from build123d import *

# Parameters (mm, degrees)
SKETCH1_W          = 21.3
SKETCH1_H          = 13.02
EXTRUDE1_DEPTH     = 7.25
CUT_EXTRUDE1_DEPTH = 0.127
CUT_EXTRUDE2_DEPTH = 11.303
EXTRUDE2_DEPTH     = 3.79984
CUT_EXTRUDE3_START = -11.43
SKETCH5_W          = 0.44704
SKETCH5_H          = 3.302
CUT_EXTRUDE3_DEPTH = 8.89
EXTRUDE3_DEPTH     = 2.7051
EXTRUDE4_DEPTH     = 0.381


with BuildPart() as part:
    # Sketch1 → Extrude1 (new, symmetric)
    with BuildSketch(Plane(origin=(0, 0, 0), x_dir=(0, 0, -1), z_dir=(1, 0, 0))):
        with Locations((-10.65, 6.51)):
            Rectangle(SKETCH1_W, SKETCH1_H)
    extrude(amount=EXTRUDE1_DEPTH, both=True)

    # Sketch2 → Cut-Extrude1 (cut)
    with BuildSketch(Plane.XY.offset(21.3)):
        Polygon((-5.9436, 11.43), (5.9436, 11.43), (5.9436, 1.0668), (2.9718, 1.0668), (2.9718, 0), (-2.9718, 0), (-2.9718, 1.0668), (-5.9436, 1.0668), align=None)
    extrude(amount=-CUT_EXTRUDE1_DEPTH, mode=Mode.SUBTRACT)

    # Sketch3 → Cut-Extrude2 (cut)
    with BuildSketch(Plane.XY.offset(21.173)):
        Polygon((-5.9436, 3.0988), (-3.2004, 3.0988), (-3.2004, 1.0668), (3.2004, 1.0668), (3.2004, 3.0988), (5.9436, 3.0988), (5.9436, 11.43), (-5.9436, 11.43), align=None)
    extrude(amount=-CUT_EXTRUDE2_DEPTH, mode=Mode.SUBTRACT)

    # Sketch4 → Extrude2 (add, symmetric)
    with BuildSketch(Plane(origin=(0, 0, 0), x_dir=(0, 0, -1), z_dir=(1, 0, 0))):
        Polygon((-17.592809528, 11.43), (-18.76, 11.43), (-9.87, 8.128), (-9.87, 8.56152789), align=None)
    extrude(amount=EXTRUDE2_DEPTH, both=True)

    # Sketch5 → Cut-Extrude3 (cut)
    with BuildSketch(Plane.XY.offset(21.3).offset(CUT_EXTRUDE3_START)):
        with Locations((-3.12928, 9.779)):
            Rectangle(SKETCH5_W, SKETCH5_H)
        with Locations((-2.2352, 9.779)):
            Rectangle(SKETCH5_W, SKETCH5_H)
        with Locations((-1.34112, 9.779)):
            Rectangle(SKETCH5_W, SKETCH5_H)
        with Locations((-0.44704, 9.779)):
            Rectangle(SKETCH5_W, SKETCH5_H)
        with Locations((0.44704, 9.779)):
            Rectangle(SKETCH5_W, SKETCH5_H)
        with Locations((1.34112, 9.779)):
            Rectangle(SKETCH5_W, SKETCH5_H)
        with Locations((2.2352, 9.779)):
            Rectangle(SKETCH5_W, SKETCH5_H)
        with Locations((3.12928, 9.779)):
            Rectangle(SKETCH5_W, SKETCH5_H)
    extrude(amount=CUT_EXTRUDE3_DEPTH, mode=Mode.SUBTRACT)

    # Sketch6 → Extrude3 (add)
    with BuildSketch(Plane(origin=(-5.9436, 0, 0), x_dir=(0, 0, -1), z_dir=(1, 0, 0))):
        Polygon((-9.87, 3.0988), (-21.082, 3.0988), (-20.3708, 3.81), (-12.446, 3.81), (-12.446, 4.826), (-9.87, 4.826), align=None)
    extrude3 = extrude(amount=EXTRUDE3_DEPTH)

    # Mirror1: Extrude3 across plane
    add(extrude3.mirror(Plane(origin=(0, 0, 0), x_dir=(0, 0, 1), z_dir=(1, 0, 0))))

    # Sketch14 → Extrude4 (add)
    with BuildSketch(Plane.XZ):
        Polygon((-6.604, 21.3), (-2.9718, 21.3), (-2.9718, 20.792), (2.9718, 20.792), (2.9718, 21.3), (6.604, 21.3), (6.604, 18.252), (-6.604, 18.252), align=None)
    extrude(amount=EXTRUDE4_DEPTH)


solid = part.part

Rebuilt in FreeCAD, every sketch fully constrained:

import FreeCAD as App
import Part
import Sketcher
from FreeCAD import Vector
Q = App.Units.Quantity

doc = App.newDocument("Part")
params = doc.addObject("Spreadsheet::Sheet", "Params")
for row, (alias, value) in enumerate([
    ("pad1_length", "14.5 mm"),
    ("sketch2_width", "0.468 in"),
    ("sketch2_width2", "0.117 in"),
    ("sketch2_height", "0.408 in"),
    ("sketch2_height2", "0.042 in"),
    ("pocket1_length", "0.005 in"),
    ("sketch3_height", "0.08 in"),
    ("sketch3_width", "0.108 in"),
    ("sketch3_width2", "0.252 in"),
    ("sketch3_height2", "0.328 in"),
    ("pocket2_length", "0.445 in"),
    ("pad2_length", "0.2992 in"),
    ("sketch5_height", "0.13 in"),
    ("pocket3_length", "0.35 in"),
    ("sketch6_width", "0.04 in"),
    ("sketch6_width2", "0.068 in"),
    ("sketch6_height", "0.312 in"),
    ("pad3_length", "0.1065 in"),
    ("sketch7_width", "0.52 in"),
    ("sketch7_height", "0.12 in"),
    ("sketch7_height2", "0.02 in"),
    ("sketch7_width2", "0.143 in"),
    ("pad4_length", "0.015 in"),
], start=1):
    params.set(f"A{row}", alias)
    params.set(f"B{row}", "=" + value)
    params.setAlias(f"B{row}", alias)

body = doc.addObject("PartDesign::Body", "Body")

# Sketch on YZ plane
sketch1 = doc.addObject("Sketcher::SketchObject", "Sketch")
body.addObject(sketch1)
sketch1.AttachmentSupport = (doc.YZ_Plane, [""])
sketch1.MapMode = "FlatFace"
sketch1.addGeometry(Part.LineSegment(Vector(13, 21, 0), Vector(0, 21, 0)), False)
sketch1.addGeometry(Part.LineSegment(Vector(0, 21, 0), Vector(0, 0, 0)), False)
sketch1.addGeometry(Part.LineSegment(Vector(0, 0, 0), Vector(13, 0, 0)), False)
sketch1.addGeometry(Part.LineSegment(Vector(13, 0, 0), Vector(13, 21, 0)), False)
sketch1.addConstraint(Sketcher.Constraint("Coincident", 0, 2, 1, 1))
sketch1.addConstraint(Sketcher.Constraint("Coincident", 1, 2, 2, 1))
sketch1.addConstraint(Sketcher.Constraint("Coincident", 2, 2, 3, 1))
sketch1.addConstraint(Sketcher.Constraint("Coincident", 3, 2, 0, 1))
sketch1.addConstraint(Sketcher.Constraint("Horizontal", 0))
sketch1.addConstraint(Sketcher.Constraint("Vertical", 1))
sketch1.addConstraint(Sketcher.Constraint("Horizontal", 2))
sketch1.addConstraint(Sketcher.Constraint("Vertical", 3))
sketch1.addConstraint(Sketcher.Constraint("Coincident", 1, 2, -1, 1))
sketch1.addConstraint(Sketcher.Constraint("DistanceX", 0, 2, 0, 1, 13.02))
sketch1.addConstraint(Sketcher.Constraint("DistanceY", 1, 2, 1, 1, 21.3))
pad1 = doc.addObject("PartDesign::Pad", "Pad")
body.addObject(pad1)
pad1.Profile = sketch1
pad1.setExpression("Length", "Params.pad1_length")
pad1.Midplane = True

# Sketch on XY plane
sketch2 = doc.addObject("Sketcher::SketchObject", "Sketch001")
body.addObject(sketch2)
sketch2.AttachmentSupport = (doc.XY_Plane, [""])
sketch2.MapMode = "FlatFace"
sketch2.AttachmentOffset = App.Placement(Vector(0, 0, 21.3), App.Rotation())
sketch2.addGeometry(Part.LineSegment(Vector(5.9, 11.4, 0), Vector(-5.9, 11.4, 0)), False)
sketch2.addGeometry(Part.LineSegment(Vector(-5.9, 11.4, 0), Vector(-5.9, 1.1, 0)), False)
sketch2.addGeometry(Part.LineSegment(Vector(-5.9, 1.1, 0), Vector(-3, 1.1, 0)), False)
sketch2.addGeometry(Part.LineSegment(Vector(-3, 1.1, 0), Vector(-3, 0, 0)), False)
sketch2.addGeometry(Part.LineSegment(Vector(-3, 0, 0), Vector(3, 0, 0)), False)
sketch2.addGeometry(Part.LineSegment(Vector(3, 0, 0), Vector(3, 1.1, 0)), False)
sketch2.addGeometry(Part.LineSegment(Vector(3, 1.1, 0), Vector(5.9, 1.1, 0)), False)
sketch2.addGeometry(Part.LineSegment(Vector(5.9, 1.1, 0), Vector(5.9, 11.4, 0)), False)
sketch2.addConstraint(Sketcher.Constraint("Coincident", 0, 2, 1, 1))
sketch2.addConstraint(Sketcher.Constraint("Coincident", 1, 2, 2, 1))
sketch2.addConstraint(Sketcher.Constraint("Coincident", 2, 2, 3, 1))
sketch2.addConstraint(Sketcher.Constraint("Coincident", 3, 2, 4, 1))
sketch2.addConstraint(Sketcher.Constraint("Coincident", 4, 2, 5, 1))
sketch2.addConstraint(Sketcher.Constraint("Coincident", 5, 2, 6, 1))
sketch2.addConstraint(Sketcher.Constraint("Coincident", 6, 2, 7, 1))
sketch2.addConstraint(Sketcher.Constraint("Coincident", 7, 2, 0, 1))
sketch2.addConstraint(Sketcher.Constraint("Horizontal", 0))
sketch2.addConstraint(Sketcher.Constraint("Vertical", 1))
sketch2.addConstraint(Sketcher.Constraint("Horizontal", 2))
sketch2.addConstraint(Sketcher.Constraint("Vertical", 3))
sketch2.addConstraint(Sketcher.Constraint("Horizontal", 4))
sketch2.addConstraint(Sketcher.Constraint("Vertical", 5))
sketch2.addConstraint(Sketcher.Constraint("Horizontal", 6))
sketch2.addConstraint(Sketcher.Constraint("Vertical", 7))
sketch2.addConstraint(Sketcher.Constraint("Symmetric", 3, 2, 4, 2, -1, 1))
sketch2.addConstraint(Sketcher.Constraint("Symmetric", 1, 2, 6, 2, -2))
sketch2.addConstraint(Sketcher.Constraint("DistanceX", 0, 2, 0, 1, Q("0.468 in")))
sketch2.addConstraint(Sketcher.Constraint("DistanceX", 2, 1, 2, 2, Q("0.117 in")))
sketch2.addConstraint(Sketcher.Constraint("DistanceY", 1, 2, 1, 1, Q("0.408 in")))
sketch2.addConstraint(Sketcher.Constraint("DistanceY", 3, 2, 3, 1, Q("0.042 in")))
sketch2.setExpression("Constraints[18]", "Params.sketch2_width")
sketch2.setExpression("Constraints[19]", "Params.sketch2_width2")
sketch2.setExpression("Constraints[20]", "Params.sketch2_height")
sketch2.setExpression("Constraints[21]", "Params.sketch2_height2")
pocket1 = doc.addObject("PartDesign::Pocket", "Pocket")
body.addObject(pocket1)
pocket1.Profile = sketch2
pocket1.setExpression("Length", "Params.pocket1_length")

# Sketch on XY plane
sketch3 = doc.addObject("Sketcher::SketchObject", "Sketch002")
body.addObject(sketch3)
sketch3.AttachmentSupport = (doc.XY_Plane, [""])
sketch3.MapMode = "FlatFace"
sketch3.AttachmentOffset = App.Placement(Vector(0, 0, 21.173), App.Rotation())
sketch3.addGeometry(Part.LineSegment(Vector(-5.9, 3.1, 0), Vector(-3.2, 3.1, 0)), False)
sketch3.addGeometry(Part.LineSegment(Vector(-3.2, 3.1, 0), Vector(-3.2, 1.1, 0)), False)
sketch3.addGeometry(Part.LineSegment(Vector(-3.2, 1.1, 0), Vector(3.2, 1.1, 0)), False)
sketch3.addGeometry(Part.LineSegment(Vector(3.2, 1.1, 0), Vector(3.2, 3.1, 0)), False)
sketch3.addGeometry(Part.LineSegment(Vector(3.2, 3.1, 0), Vector(5.9, 3.1, 0)), False)
sketch3.addGeometry(Part.LineSegment(Vector(5.9, 3.1, 0), Vector(5.9, 11.4, 0)), False)
sketch3.addGeometry(Part.LineSegment(Vector(5.9, 11.4, 0), Vector(-5.9, 11.4, 0)), False)
sketch3.addGeometry(Part.LineSegment(Vector(-5.9, 11.4, 0), Vector(-5.9, 3.1, 0)), False)
sketch3.addConstraint(Sketcher.Constraint("Coincident", 0, 2, 1, 1))
sketch3.addConstraint(Sketcher.Constraint("Coincident", 1, 2, 2, 1))
sketch3.addConstraint(Sketcher.Constraint("Coincident", 2, 2, 3, 1))
sketch3.addConstraint(Sketcher.Constraint("Coincident", 3, 2, 4, 1))
sketch3.addConstraint(Sketcher.Constraint("Coincident", 4, 2, 5, 1))
sketch3.addConstraint(Sketcher.Constraint("Coincident", 5, 2, 6, 1))
sketch3.addConstraint(Sketcher.Constraint("Coincident", 6, 2, 7, 1))
sketch3.addConstraint(Sketcher.Constraint("Coincident", 7, 2, 0, 1))
sketch3.addConstraint(Sketcher.Constraint("Horizontal", 0))
sketch3.addConstraint(Sketcher.Constraint("Vertical", 1))
sketch3.addConstraint(Sketcher.Constraint("Horizontal", 2))
sketch3.addConstraint(Sketcher.Constraint("Vertical", 3))
sketch3.addConstraint(Sketcher.Constraint("Horizontal", 4))
sketch3.addConstraint(Sketcher.Constraint("Vertical", 5))
sketch3.addConstraint(Sketcher.Constraint("Horizontal", 6))
sketch3.addConstraint(Sketcher.Constraint("Vertical", 7))
sketch3.addConstraint(Sketcher.Constraint("Symmetric", 0, 2, 3, 2, -2))
sketch3.addConstraint(Sketcher.Constraint("Equal", 0, 4))
sketch3.addConstraint(Sketcher.Constraint("DistanceY", 1, 2, 1, 1, Q("0.08 in")))
sketch3.addConstraint(Sketcher.Constraint("DistanceX", 0, 1, 0, 2, Q("0.108 in")))
sketch3.addConstraint(Sketcher.Constraint("DistanceX", 2, 1, 2, 2, Q("0.252 in")))
sketch3.addConstraint(Sketcher.Constraint("DistanceY", 5, 1, 5, 2, Q("0.328 in")))
sketch3.addConstraint(Sketcher.Constraint("DistanceY", -1, 1, 5, 2, Q("0.45 in")))
sketch3.setExpression("Constraints[18]", "Params.sketch3_height")
sketch3.setExpression("Constraints[19]", "Params.sketch3_width")
sketch3.setExpression("Constraints[20]", "Params.sketch3_width2")
sketch3.setExpression("Constraints[21]", "Params.sketch3_height2")
pocket2 = doc.addObject("PartDesign::Pocket", "Pocket001")
body.addObject(pocket2)
pocket2.Profile = sketch3
pocket2.setExpression("Length", "Params.pocket2_length")

# Sketch on YZ plane
sketch4 = doc.addObject("Sketcher::SketchObject", "Sketch003")
body.addObject(sketch4)
sketch4.AttachmentSupport = (doc.YZ_Plane, [""])
sketch4.MapMode = "FlatFace"
sketch4.addGeometry(Part.LineSegment(Vector(11.43, 17.59, 0), Vector(11.43, 18.76, 0)), False)
sketch4.addGeometry(Part.LineSegment(Vector(11.43, 18.76, 0), Vector(8.13, 9.87, 0)), False)
sketch4.addGeometry(Part.LineSegment(Vector(8.13, 9.87, 0), Vector(8.56, 9.87, 0)), False)
sketch4.addGeometry(Part.LineSegment(Vector(8.56, 9.87, 0), Vector(11.43, 17.59, 0)), False)
sketch4.addConstraint(Sketcher.Constraint("Coincident", 0, 2, 1, 1))
sketch4.addConstraint(Sketcher.Constraint("Coincident", 1, 2, 2, 1))
sketch4.addConstraint(Sketcher.Constraint("Coincident", 2, 2, 3, 1))
sketch4.addConstraint(Sketcher.Constraint("Coincident", 3, 2, 0, 1))
sketch4.addConstraint(Sketcher.Constraint("Vertical", 0))
sketch4.addConstraint(Sketcher.Constraint("Horizontal", 2))
sketch4.addConstraint(Sketcher.Constraint("Parallel", 1, 3))
sketch4.addConstraint(Sketcher.Constraint("DistanceX", -1, 1, 0, 2, Q("0.45 in")))
sketch4.addConstraint(Sketcher.Constraint("DistanceX", -1, 1, 1, 2, Q("0.32 in")))
sketch4.addConstraint(Sketcher.Constraint("DistanceY", 1, 2, 0, 2, Q("0.35 in")))
sketch4.addConstraint(Sketcher.Constraint("DistanceY", 0, 1, 0, 2, 1.16719))
sketch4.addConstraint(Sketcher.Constraint("DistanceY", -1, 1, 0, 2, 18.76))
pad2 = doc.addObject("PartDesign::Pad", "Pad001")
body.addObject(pad2)
pad2.Profile = sketch4
pad2.setExpression("Length", "Params.pad2_length")
pad2.Midplane = True

# Sketch on XY plane
sketch5 = doc.addObject("Sketcher::SketchObject", "Sketch004")
body.addObject(sketch5)
sketch5.AttachmentSupport = (doc.XY_Plane, [""])
sketch5.MapMode = "FlatFace"
sketch5.AttachmentOffset = App.Placement(Vector(0, 0, 9.87), App.Rotation())
sketch5.addGeometry(Part.LineSegment(Vector(-3.35, 11.43, 0), Vector(-3.35, 8.13, 0)), False)
sketch5.addGeometry(Part.LineSegment(Vector(-3.35, 8.13, 0), Vector(-2.91, 8.13, 0)), False)
sketch5.addGeometry(Part.LineSegment(Vector(-2.91, 8.13, 0), Vector(-2.91, 11.43, 0)), False)
sketch5.addGeometry(Part.LineSegment(Vector(-2.91, 11.43, 0), Vector(-3.35, 11.43, 0)), False)
sketch5.addGeometry(Part.LineSegment(Vector(-2.46, 11.43, 0), Vector(-2.46, 8.13, 0)), False)
sketch5.addGeometry(Part.LineSegment(Vector(-2.46, 8.13, 0), Vector(-2.01, 8.13, 0)), False)
sketch5.addGeometry(Part.LineSegment(Vector(-2.01, 8.13, 0), Vector(-2.01, 11.43, 0)), False)
sketch5.addGeometry(Part.LineSegment(Vector(-2.01, 11.43, 0), Vector(-2.46, 11.43, 0)), False)
sketch5.addGeometry(Part.LineSegment(Vector(-1.56, 11.43, 0), Vector(-1.56, 8.13, 0)), False)
sketch5.addGeometry(Part.LineSegment(Vector(-1.56, 8.13, 0), Vector(-1.12, 8.13, 0)), False)
sketch5.addGeometry(Part.LineSegment(Vector(-1.12, 8.13, 0), Vector(-1.12, 11.43, 0)), False)
sketch5.addGeometry(Part.LineSegment(Vector(-1.12, 11.43, 0), Vector(-1.56, 11.43, 0)), False)
sketch5.addGeometry(Part.LineSegment(Vector(-0.67, 11.43, 0), Vector(-0.67, 8.13, 0)), False)
sketch5.addGeometry(Part.LineSegment(Vector(-0.67, 8.13, 0), Vector(-0.22, 8.13, 0)), False)
sketch5.addGeometry(Part.LineSegment(Vector(-0.22, 8.13, 0), Vector(-0.22, 11.43, 0)), False)
sketch5.addGeometry(Part.LineSegment(Vector(-0.22, 11.43, 0), Vector(-0.67, 11.43, 0)), False)
sketch5.addGeometry(Part.LineSegment(Vector(0.22, 11.43, 0), Vector(0.22, 8.13, 0)), False)
sketch5.addGeometry(Part.LineSegment(Vector(0.22, 8.13, 0), Vector(0.67, 8.13, 0)), False)
sketch5.addGeometry(Part.LineSegment(Vector(0.67, 8.13, 0), Vector(0.67, 11.43, 0)), False)
sketch5.addGeometry(Part.LineSegment(Vector(0.67, 11.43, 0), Vector(0.22, 11.43, 0)), False)
sketch5.addGeometry(Part.LineSegment(Vector(1.12, 11.43, 0), Vector(1.12, 8.13, 0)), False)
sketch5.addGeometry(Part.LineSegment(Vector(1.12, 8.13, 0), Vector(1.56, 8.13, 0)), False)
sketch5.addGeometry(Part.LineSegment(Vector(1.56, 8.13, 0), Vector(1.56, 11.43, 0)), False)
sketch5.addGeometry(Part.LineSegment(Vector(1.56, 11.43, 0), Vector(1.12, 11.43, 0)), False)
sketch5.addGeometry(Part.LineSegment(Vector(2.01, 11.43, 0), Vector(2.01, 8.13, 0)), False)
sketch5.addGeometry(Part.LineSegment(Vector(2.01, 8.13, 0), Vector(2.46, 8.13, 0)), False)
sketch5.addGeometry(Part.LineSegment(Vector(2.46, 8.13, 0), Vector(2.46, 11.43, 0)), False)
sketch5.addGeometry(Part.LineSegment(Vector(2.46, 11.43, 0), Vector(2.01, 11.43, 0)), False)
sketch5.addGeometry(Part.LineSegment(Vector(2.91, 11.43, 0), Vector(2.91, 8.13, 0)), False)
sketch5.addGeometry(Part.LineSegment(Vector(2.91, 8.13, 0), Vector(3.35, 8.13, 0)), False)
sketch5.addGeometry(Part.LineSegment(Vector(3.35, 8.13, 0), Vector(3.35, 11.43, 0)), False)
sketch5.addGeometry(Part.LineSegment(Vector(3.35, 11.43, 0), Vector(2.91, 11.43, 0)), False)
sketch5.addConstraint(Sketcher.Constraint("Coincident", 0, 2, 1, 1))
sketch5.addConstraint(Sketcher.Constraint("Coincident", 1, 2, 2, 1))
sketch5.addConstraint(Sketcher.Constraint("Coincident", 2, 2, 3, 1))
sketch5.addConstraint(Sketcher.Constraint("Coincident", 3, 2, 0, 1))
sketch5.addConstraint(Sketcher.Constraint("Coincident", 4, 2, 5, 1))
sketch5.addConstraint(Sketcher.Constraint("Coincident", 5, 2, 6, 1))
sketch5.addConstraint(Sketcher.Constraint("Coincident", 6, 2, 7, 1))
sketch5.addConstraint(Sketcher.Constraint("Coincident", 7, 2, 4, 1))
sketch5.addConstraint(Sketcher.Constraint("Coincident", 8, 2, 9, 1))
sketch5.addConstraint(Sketcher.Constraint("Coincident", 9, 2, 10, 1))
sketch5.addConstraint(Sketcher.Constraint("Coincident", 10, 2, 11, 1))
sketch5.addConstraint(Sketcher.Constraint("Coincident", 11, 2, 8, 1))
sketch5.addConstraint(Sketcher.Constraint("Coincident", 12, 2, 13, 1))
sketch5.addConstraint(Sketcher.Constraint("Coincident", 13, 2, 14, 1))
sketch5.addConstraint(Sketcher.Constraint("Coincident", 14, 2, 15, 1))
sketch5.addConstraint(Sketcher.Constraint("Coincident", 15, 2, 12, 1))
sketch5.addConstraint(Sketcher.Constraint("Coincident", 16, 2, 17, 1))
sketch5.addConstraint(Sketcher.Constraint("Coincident", 17, 2, 18, 1))
sketch5.addConstraint(Sketcher.Constraint("Coincident", 18, 2, 19, 1))
sketch5.addConstraint(Sketcher.Constraint("Coincident", 19, 2, 16, 1))
sketch5.addConstraint(Sketcher.Constraint("Coincident", 20, 2, 21, 1))
sketch5.addConstraint(Sketcher.Constraint("Coincident", 21, 2, 22, 1))
sketch5.addConstraint(Sketcher.Constraint("Coincident", 22, 2, 23, 1))
sketch5.addConstraint(Sketcher.Constraint("Coincident", 23, 2, 20, 1))
sketch5.addConstraint(Sketcher.Constraint("Coincident", 24, 2, 25, 1))
sketch5.addConstraint(Sketcher.Constraint("Coincident", 25, 2, 26, 1))
sketch5.addConstraint(Sketcher.Constraint("Coincident", 26, 2, 27, 1))
sketch5.addConstraint(Sketcher.Constraint("Coincident", 27, 2, 24, 1))
sketch5.addConstraint(Sketcher.Constraint("Coincident", 28, 2, 29, 1))
sketch5.addConstraint(Sketcher.Constraint("Coincident", 29, 2, 30, 1))
sketch5.addConstraint(Sketcher.Constraint("Coincident", 30, 2, 31, 1))
sketch5.addConstraint(Sketcher.Constraint("Coincident", 31, 2, 28, 1))
sketch5.addConstraint(Sketcher.Constraint("Vertical", 0))
sketch5.addConstraint(Sketcher.Constraint("Horizontal", 1))
sketch5.addConstraint(Sketcher.Constraint("Vertical", 2))
sketch5.addConstraint(Sketcher.Constraint("Horizontal", 3))
sketch5.addConstraint(Sketcher.Constraint("Vertical", 4))
sketch5.addConstraint(Sketcher.Constraint("Horizontal", 5))
sketch5.addConstraint(Sketcher.Constraint("Vertical", 6))
sketch5.addConstraint(Sketcher.Constraint("Horizontal", 7))
sketch5.addConstraint(Sketcher.Constraint("Vertical", 8))
sketch5.addConstraint(Sketcher.Constraint("Horizontal", 9))
sketch5.addConstraint(Sketcher.Constraint("Vertical", 10))
sketch5.addConstraint(Sketcher.Constraint("Horizontal", 11))
sketch5.addConstraint(Sketcher.Constraint("Vertical", 12))
sketch5.addConstraint(Sketcher.Constraint("Horizontal", 13))
sketch5.addConstraint(Sketcher.Constraint("Vertical", 14))
sketch5.addConstraint(Sketcher.Constraint("Horizontal", 15))
sketch5.addConstraint(Sketcher.Constraint("Vertical", 16))
sketch5.addConstraint(Sketcher.Constraint("Horizontal", 17))
sketch5.addConstraint(Sketcher.Constraint("Vertical", 18))
sketch5.addConstraint(Sketcher.Constraint("Horizontal", 19))
sketch5.addConstraint(Sketcher.Constraint("Vertical", 20))
sketch5.addConstraint(Sketcher.Constraint("Horizontal", 21))
sketch5.addConstraint(Sketcher.Constraint("Vertical", 22))
sketch5.addConstraint(Sketcher.Constraint("Horizontal", 23))
sketch5.addConstraint(Sketcher.Constraint("Vertical", 24))
sketch5.addConstraint(Sketcher.Constraint("Horizontal", 25))
sketch5.addConstraint(Sketcher.Constraint("Vertical", 26))
sketch5.addConstraint(Sketcher.Constraint("Horizontal", 27))
sketch5.addConstraint(Sketcher.Constraint("Vertical", 28))
sketch5.addConstraint(Sketcher.Constraint("Horizontal", 29))
sketch5.addConstraint(Sketcher.Constraint("Vertical", 30))
sketch5.addConstraint(Sketcher.Constraint("Horizontal", 31))
sketch5.addConstraint(Sketcher.Constraint("Symmetric", 13, 2, 16, 2, -2))
sketch5.addConstraint(Sketcher.Constraint("Symmetric", 15, 2, 18, 2, -2))
sketch5.addConstraint(Sketcher.Constraint("Symmetric", 9, 2, 20, 2, -2))
sketch5.addConstraint(Sketcher.Constraint("Symmetric", 11, 2, 22, 2, -2))
sketch5.addConstraint(Sketcher.Constraint("Symmetric", 5, 2, 24, 2, -2))
sketch5.addConstraint(Sketcher.Constraint("Symmetric", 7, 2, 26, 2, -2))
sketch5.addConstraint(Sketcher.Constraint("Symmetric", 1, 2, 28, 2, -2))
sketch5.addConstraint(Sketcher.Constraint("Symmetric", 3, 2, 30, 2, -2))
sketch5.addConstraint(Sketcher.Constraint("Horizontal", 1, 2, 4, 2))
sketch5.addConstraint(Sketcher.Constraint("Horizontal", 3, 2, 6, 2))
sketch5.addConstraint(Sketcher.Constraint("Horizontal", 5, 2, 8, 2))
sketch5.addConstraint(Sketcher.Constraint("Horizontal", 7, 2, 10, 2))
sketch5.addConstraint(Sketcher.Constraint("Horizontal", 9, 2, 12, 2))
sketch5.addConstraint(Sketcher.Constraint("Horizontal", 11, 2, 14, 2))
sketch5.addConstraint(Sketcher.Constraint("Equal", 3, 5))
sketch5.addConstraint(Sketcher.Constraint("Equal", 7, 9))
sketch5.addConstraint(Sketcher.Constraint("Equal", 11, 13))
sketch5.addConstraint(Sketcher.Constraint("DistanceY", 0, 2, 0, 1, Q("0.13 in")))
sketch5.addConstraint(Sketcher.Constraint("DistanceY", -1, 1, 0, 2, Q("0.32 in")))
sketch5.addConstraint(Sketcher.Constraint("DistanceX", 1, 1, 1, 2, Q("0.0176 in")))
sketch5.addConstraint(Sketcher.Constraint("DistanceX", 0, 2, -1, 1, Q("0.132 in")))
sketch5.addConstraint(Sketcher.Constraint("DistanceX", 9, 2, -1, 1, Q("0.044 in")))
sketch5.addConstraint(Sketcher.Constraint("DistanceX", 1, 2, 12, 2, Q("0.088 in")))
sketch5.addConstraint(Sketcher.Constraint("DistanceX", 4, 2, 13, 2, Q("0.088 in")))
sketch5.setExpression("Constraints[81]", "Params.sketch5_height")
pocket3 = doc.addObject("PartDesign::Pocket", "Pocket002")
body.addObject(pocket3)
pocket3.Profile = sketch5
pocket3.setExpression("Length", "Params.pocket3_length")
pocket3.Reversed = True

# Sketch on YZ plane
sketch6 = doc.addObject("Sketcher::SketchObject", "Sketch005")
body.addObject(sketch6)
sketch6.AttachmentSupport = (doc.YZ_Plane, [""])
sketch6.MapMode = "FlatFace"
sketch6.AttachmentOffset = App.Placement(Vector(0, 0, -0.234 * 25.4), App.Rotation())
sketch6.addGeometry(Part.LineSegment(Vector(3.1, 21.1, 0), Vector(3.1, 9.9, 0)), False)
sketch6.addGeometry(Part.LineSegment(Vector(3.1, 9.9, 0), Vector(4.8, 9.9, 0)), False)
sketch6.addGeometry(Part.LineSegment(Vector(4.8, 9.9, 0), Vector(4.8, 12.4, 0)), False)
sketch6.addGeometry(Part.LineSegment(Vector(4.8, 12.4, 0), Vector(3.8, 12.4, 0)), False)
sketch6.addGeometry(Part.LineSegment(Vector(3.8, 12.4, 0), Vector(3.8, 20.4, 0)), False)
sketch6.addGeometry(Part.LineSegment(Vector(3.8, 20.4, 0), Vector(3.1, 21.1, 0)), False)
sketch6.addConstraint(Sketcher.Constraint("Coincident", 0, 2, 1, 1))
sketch6.addConstraint(Sketcher.Constraint("Coincident", 1, 2, 2, 1))
sketch6.addConstraint(Sketcher.Constraint("Coincident", 2, 2, 3, 1))
sketch6.addConstraint(Sketcher.Constraint("Coincident", 3, 2, 4, 1))
sketch6.addConstraint(Sketcher.Constraint("Coincident", 4, 2, 5, 1))
sketch6.addConstraint(Sketcher.Constraint("Coincident", 5, 2, 0, 1))
sketch6.addConstraint(Sketcher.Constraint("Vertical", 0))
sketch6.addConstraint(Sketcher.Constraint("Horizontal", 1))
sketch6.addConstraint(Sketcher.Constraint("Vertical", 2))
sketch6.addConstraint(Sketcher.Constraint("Horizontal", 3))
sketch6.addConstraint(Sketcher.Constraint("Vertical", 4))
sketch6.addConstraint(Sketcher.Constraint("Angle", 5, Q("135 deg")))
sketch6.addConstraint(Sketcher.Constraint("DistanceX", 3, 2, 3, 1, Q("0.04 in")))
sketch6.addConstraint(Sketcher.Constraint("DistanceX", 1, 1, 1, 2, Q("0.068 in")))
sketch6.addConstraint(Sketcher.Constraint("DistanceY", 4, 1, 4, 2, Q("0.312 in")))
sketch6.addConstraint(Sketcher.Constraint("DistanceX", -1, 1, 1, 2, Q("0.19 in")))
sketch6.addConstraint(Sketcher.Constraint("DistanceY", -1, 1, 2, 2, Q("0.49 in")))
sketch6.addConstraint(Sketcher.Constraint("DistanceY", 0, 2, 0, 1, 11.212))
sketch6.setExpression("Constraints[12]", "Params.sketch6_width")
sketch6.setExpression("Constraints[13]", "Params.sketch6_width2")
sketch6.setExpression("Constraints[14]", "Params.sketch6_height")
pad3 = doc.addObject("PartDesign::Pad", "Pad002")
body.addObject(pad3)
pad3.Profile = sketch6
pad3.setExpression("Length", "Params.pad3_length")
doc.recompute()

mirrored = doc.addObject("PartDesign::Mirrored", "Mirrored")
body.addObject(mirrored)
mirrored.Originals = [pad3]
mirrored.MirrorPlane = (doc.YZ_Plane, [""])
body.Tip = mirrored

# Sketch on XZ plane
sketch7 = doc.addObject("Sketcher::SketchObject", "Sketch006")
body.addObject(sketch7)
sketch7.AttachmentSupport = (doc.XZ_Plane, [""])
sketch7.MapMode = "FlatFace"
sketch7.addGeometry(Part.LineSegment(Vector(-3, 21.3, 0), Vector(-6.6, 21.3, 0)), False)
sketch7.addGeometry(Part.LineSegment(Vector(-6.6, 21.3, 0), Vector(-6.6, 18.3, 0)), False)
sketch7.addGeometry(Part.LineSegment(Vector(-6.6, 18.3, 0), Vector(6.6, 18.3, 0)), False)
sketch7.addGeometry(Part.LineSegment(Vector(6.6, 18.3, 0), Vector(6.6, 21.3, 0)), False)
sketch7.addGeometry(Part.LineSegment(Vector(6.6, 21.3, 0), Vector(3, 21.3, 0)), False)
sketch7.addGeometry(Part.LineSegment(Vector(3, 21.3, 0), Vector(3, 20.8, 0)), False)
sketch7.addGeometry(Part.LineSegment(Vector(3, 20.8, 0), Vector(-3, 20.8, 0)), False)
sketch7.addGeometry(Part.LineSegment(Vector(-3, 20.8, 0), Vector(-3, 21.3, 0)), False)
sketch7.addConstraint(Sketcher.Constraint("Coincident", 0, 2, 1, 1))
sketch7.addConstraint(Sketcher.Constraint("Coincident", 1, 2, 2, 1))
sketch7.addConstraint(Sketcher.Constraint("Coincident", 2, 2, 3, 1))
sketch7.addConstraint(Sketcher.Constraint("Coincident", 3, 2, 4, 1))
sketch7.addConstraint(Sketcher.Constraint("Coincident", 4, 2, 5, 1))
sketch7.addConstraint(Sketcher.Constraint("Coincident", 5, 2, 6, 1))
sketch7.addConstraint(Sketcher.Constraint("Coincident", 6, 2, 7, 1))
sketch7.addConstraint(Sketcher.Constraint("Coincident", 7, 2, 0, 1))
sketch7.addConstraint(Sketcher.Constraint("Horizontal", 0))
sketch7.addConstraint(Sketcher.Constraint("Vertical", 1))
sketch7.addConstraint(Sketcher.Constraint("Horizontal", 2))
sketch7.addConstraint(Sketcher.Constraint("Vertical", 3))
sketch7.addConstraint(Sketcher.Constraint("Horizontal", 4))
sketch7.addConstraint(Sketcher.Constraint("Vertical", 5))
sketch7.addConstraint(Sketcher.Constraint("Horizontal", 6))
sketch7.addConstraint(Sketcher.Constraint("Vertical", 7))
sketch7.addConstraint(Sketcher.Constraint("Symmetric", 0, 2, 3, 2, -2))
sketch7.addConstraint(Sketcher.Constraint("Equal", 0, 4))
sketch7.addConstraint(Sketcher.Constraint("DistanceX", 2, 1, 2, 2, Q("0.52 in")))
sketch7.addConstraint(Sketcher.Constraint("DistanceY", 1, 2, 1, 1, Q("0.12 in")))
sketch7.addConstraint(Sketcher.Constraint("DistanceY", 5, 2, 5, 1, Q("0.02 in")))
sketch7.addConstraint(Sketcher.Constraint("DistanceX", 0, 2, 0, 1, Q("0.143 in")))
sketch7.addConstraint(Sketcher.Constraint("DistanceY", -1, 1, 0, 2, 21.3))
sketch7.setExpression("Constraints[18]", "Params.sketch7_width")
sketch7.setExpression("Constraints[19]", "Params.sketch7_height")
sketch7.setExpression("Constraints[20]", "Params.sketch7_height2")
sketch7.setExpression("Constraints[21]", "Params.sketch7_width2")
pad4 = doc.addObject("PartDesign::Pad", "Pad003")
body.addObject(pad4)
pad4.Profile = sketch7
pad4.setExpression("Length", "Params.pad4_length")

doc.recompute()
